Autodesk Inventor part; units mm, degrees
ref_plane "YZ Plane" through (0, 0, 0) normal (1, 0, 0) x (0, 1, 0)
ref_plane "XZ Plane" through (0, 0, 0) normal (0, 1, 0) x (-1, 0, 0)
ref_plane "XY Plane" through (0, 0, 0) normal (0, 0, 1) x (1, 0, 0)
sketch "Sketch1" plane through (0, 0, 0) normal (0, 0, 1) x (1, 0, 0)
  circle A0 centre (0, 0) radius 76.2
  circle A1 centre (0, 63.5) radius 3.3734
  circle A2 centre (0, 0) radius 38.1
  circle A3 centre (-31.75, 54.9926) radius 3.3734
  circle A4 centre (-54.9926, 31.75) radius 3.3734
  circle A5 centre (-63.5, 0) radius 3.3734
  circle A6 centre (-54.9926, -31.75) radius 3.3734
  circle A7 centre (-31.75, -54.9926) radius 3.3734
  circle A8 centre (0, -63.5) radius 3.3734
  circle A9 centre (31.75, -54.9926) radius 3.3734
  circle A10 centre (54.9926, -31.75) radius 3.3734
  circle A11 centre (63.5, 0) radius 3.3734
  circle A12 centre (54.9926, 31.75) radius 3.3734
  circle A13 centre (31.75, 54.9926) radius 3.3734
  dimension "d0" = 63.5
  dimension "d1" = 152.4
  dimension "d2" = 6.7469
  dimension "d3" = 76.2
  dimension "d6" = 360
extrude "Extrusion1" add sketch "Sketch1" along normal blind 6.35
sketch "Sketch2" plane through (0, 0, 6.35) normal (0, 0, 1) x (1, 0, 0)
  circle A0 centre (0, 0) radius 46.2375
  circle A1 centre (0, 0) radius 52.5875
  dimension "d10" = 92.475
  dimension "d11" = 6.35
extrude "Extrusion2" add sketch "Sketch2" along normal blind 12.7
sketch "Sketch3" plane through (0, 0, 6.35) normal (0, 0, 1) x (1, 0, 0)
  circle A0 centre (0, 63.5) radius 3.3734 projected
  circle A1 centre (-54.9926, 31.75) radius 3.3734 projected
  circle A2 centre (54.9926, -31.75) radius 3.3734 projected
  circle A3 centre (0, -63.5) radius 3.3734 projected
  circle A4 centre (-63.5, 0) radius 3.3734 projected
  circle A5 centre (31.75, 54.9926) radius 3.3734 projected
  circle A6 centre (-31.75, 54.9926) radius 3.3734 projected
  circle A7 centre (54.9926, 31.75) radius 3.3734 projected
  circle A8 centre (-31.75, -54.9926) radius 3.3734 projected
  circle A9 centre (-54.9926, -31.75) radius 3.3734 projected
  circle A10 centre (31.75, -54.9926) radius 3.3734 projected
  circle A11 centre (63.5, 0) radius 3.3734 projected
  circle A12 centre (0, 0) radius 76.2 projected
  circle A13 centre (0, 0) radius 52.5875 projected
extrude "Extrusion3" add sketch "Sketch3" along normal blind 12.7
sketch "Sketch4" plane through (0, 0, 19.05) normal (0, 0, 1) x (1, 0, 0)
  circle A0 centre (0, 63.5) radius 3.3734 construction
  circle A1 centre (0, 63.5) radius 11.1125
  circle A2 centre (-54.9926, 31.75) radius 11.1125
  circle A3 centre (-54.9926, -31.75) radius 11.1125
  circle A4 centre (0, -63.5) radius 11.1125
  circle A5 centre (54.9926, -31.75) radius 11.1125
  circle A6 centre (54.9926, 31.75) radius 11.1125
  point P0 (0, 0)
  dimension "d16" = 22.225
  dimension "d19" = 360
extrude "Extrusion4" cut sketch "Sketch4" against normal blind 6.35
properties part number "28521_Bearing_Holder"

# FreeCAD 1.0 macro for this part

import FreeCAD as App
import Part
import Sketcher
from FreeCAD import Vector
Q = App.Units.Quantity

doc = App.newDocument("Part")
params = doc.addObject("Spreadsheet::Sheet", "Params")
for row, (alias, value) in enumerate([
    ("sketch1_diameter", "6 in"),
    ("sketch1_diameter2", "3 in"),
    ("sketch1_diameter3", "0.265622 in"),
    ("pad1_length", "0.25 in"),
    ("pad2_length", "0.5 in"),
    ("sketch3_diameter", "6 in"),
    ("sketch3_diameter2", "0.265622 in"),
    ("pad3_length", "0.5 in"),
    ("sketch4_diameter", "0.875 in"),
    ("pocket1_length", "0.25 in"),
], start=1):
    params.set(f"A{row}", alias)
    params.set(f"B{row}", "=" + value)
    params.setAlias(f"B{row}", alias)

body = doc.addObject("PartDesign::Body", "Body")

sketch1 = body.newObject("Sketcher::SketchObject", "Sketch")
sketch1.AttachmentSupport = (doc.getObject("XY_Plane"), [""])
sketch1.MapMode = "FlatFace"
sketch1.addGeometry([
    Part.Circle(Vector(0, 0, 0), Vector(0, 0, 1), 76.2),
    Part.Circle(Vector(-31.75, -54.9926, 0), Vector(0, 0, 1), 3.3734),
    Part.Circle(Vector(-54.9926, -31.75, 0), Vector(0, 0, 1), 3.3734),
    Part.Circle(Vector(0, -63.5, 0), Vector(0, 0, 1), 3.3734),
    Part.Circle(Vector(31.75, -54.9926, 0), Vector(0, 0, 1), 3.3734),
    Part.Circle(Vector(54.9926, -31.75, 0), Vector(0, 0, 1), 3.3734),
    Part.Circle(Vector(-63.5, 0, 0), Vector(0, 0, 1), 3.3734),
    Part.Circle(Vector(-54.9926, 31.75, 0), Vector(0, 0, 1), 3.3734),
    Part.Circle(Vector(-31.75, 54.9926, 0), Vector(0, 0, 1), 3.3734),
    Part.Circle(Vector(0, 0, 0), Vector(0, 0, 1), 38.1),
    Part.Circle(Vector(63.5, 0, 0), Vector(0, 0, 1), 3.3734),
    Part.Circle(Vector(54.9926, 31.75, 0), Vector(0, 0, 1), 3.3734),
    Part.Circle(Vector(31.75, 54.9926, 0), Vector(0, 0, 1), 3.3734),
    Part.Circle(Vector(0, 63.5, 0), Vector(0, 0, 1), 3.3734),
], False)
sketch1.addConstraint([
    Sketcher.Constraint("Coincident", 0, 3, -1, 1),
    Sketcher.Constraint("Coincident", 9, 3, -1, 1),
    Sketcher.Constraint("Equal", 1, 2),
    Sketcher.Constraint("Equal", 2, 3),
    Sketcher.Constraint("Equal", 3, 4),
    Sketcher.Constraint("Equal", 4, 5),
    Sketcher.Constraint("Equal", 5, 6),
    Sketcher.Constraint("Equal", 6, 7),
    Sketcher.Constraint("Equal", 7, 8),
    Sketcher.Constraint("Equal", 8, 10),
    Sketcher.Constraint("Equal", 10, 11),
    Sketcher.Constraint("Equal", 11, 12),
    Sketcher.Constraint("Equal", 12, 13),
    Sketcher.Constraint("Symmetric", 5, 3, 7, 3, -1, 1),
    Sketcher.Constraint("Symmetric", 4, 3, 8, 3, -1, 1),
    Sketcher.Constraint("Symmetric", 6, 3, 10, 3, -1, 1),
    Sketcher.Constraint("Symmetric", 2, 3, 11, 3, -1, 1),
    Sketcher.Constraint("Symmetric", 1, 3, 12, 3, -1, 1),
    Sketcher.Constraint("Symmetric", 3, 3, 13, 3, -1, 1),
    Sketcher.Constraint("Symmetric", 1, 3, 4, 3, -2),
    Sketcher.Constraint("Symmetric", 2, 3, 5, 3, -2),
    Sketcher.Constraint("PointOnObject", 3, 3, -2),
    Sketcher.Constraint("PointOnObject", 6, 3, -1),
    Sketcher.Constraint("Diameter", 0, Q("6 in")),
    Sketcher.Constraint("Diameter", 9, Q("3 in")),
    Sketcher.Constraint("Diameter", 1, Q("0.265622 in")),
    Sketcher.Constraint("DistanceY", 3, 3, -1, 1, Q("2.5 in")),
    Sketcher.Constraint("DistanceX", 6, 3, -1, 1, Q("2.5 in")),
    Sketcher.Constraint("DistanceX", 1, 3, 4, 3, Q("2.5 in")),
    Sketcher.Constraint("DistanceY", 2, 3, 7, 3, Q("2.5 in")),
    Sketcher.Constraint("DistanceY", 1, 3, -1, 1, Q("54.9926 mm")),
    Sketcher.Constraint("DistanceX", 2, 3, -1, 1, Q("54.9926 mm")),
])
sketch1.setExpression("Constraints[23]", "Params.sketch1_diameter")
sketch1.setExpression("Constraints[24]", "Params.sketch1_diameter2")
sketch1.setExpression("Constraints[25]", "Params.sketch1_diameter3")
pad1 = body.newObject("PartDesign::Pad", "Pad")
pad1.Profile = sketch1
pad1.setExpression("Length", "Params.pad1_length")

sketch2 = body.newObject("Sketcher::SketchObject", "Sketch001")
sketch2.AttachmentSupport = (doc.getObject("XY_Plane"), [""])
sketch2.MapMode = "FlatFace"
sketch2.AttachmentOffset = App.Placement(Vector(0, 0, 0.25 * 25.4), App.Rotation())
sketch2.addGeometry([
    Part.Circle(Vector(0, 0, 0), Vector(0, 0, 1), 52.5875),
    Part.Circle(Vector(0, 0, 0), Vector(0, 0, 1), 46.2375),
], False)
sketch2.addConstraint([
    Sketcher.Constraint("Coincident", 0, 3, -1, 1),
    Sketcher.Constraint("Coincident", 1, 3, -1, 1),
    Sketcher.Constraint("Diameter", 1, Q("92.475 mm")),
    Sketcher.Constraint("Diameter", 0, Q("105.175 mm")),
])
pad2 = body.newObject("PartDesign::Pad", "Pad001")
pad2.Profile = sketch2
pad2.setExpression("Length", "Params.pad2_length")

sketch3 = body.newObject("Sketcher::SketchObject", "Sketch002")
sketch3.AttachmentSupport = (doc.getObject("XY_Plane"), [""])
sketch3.MapMode = "FlatFace"
sketch3.AttachmentOffset = App.Placement(Vector(0, 0, 0.25 * 25.4), App.Rotation())
sketch3.addGeometry([
    Part.Circle(Vector(0, 0, 0), Vector(0, 0, 1), 76.2),
    Part.Circle(Vector(-31.75, -54.9926, 0), Vector(0, 0, 1), 3.3734),
    Part.Circle(Vector(-54.9926, -31.75, 0), Vector(0, 0, 1), 3.3734),
    Part.Circle(Vector(0, -63.5, 0), Vector(0, 0, 1), 3.3734),
    Part.Circle(Vector(31.75, -54.9926, 0), Vector(0, 0, 1), 3.3734),
    Part.Circle(Vector(54.9926, -31.75, 0), Vector(0, 0, 1), 3.3734),
    Part.Circle(Vector(-63.5, 0, 0), Vector(0, 0, 1), 3.3734),
    Part.Circle(Vector(-54.9926, 31.75, 0), Vector(0, 0, 1), 3.3734),
    Part.Circle(Vector(-31.75, 54.9926, 0), Vector(0, 0, 1), 3.3734),
    Part.Circle(Vector(0, 0, 0), Vector(0, 0, 1), 52.5875),
    Part.Circle(Vector(63.5, 0, 0), Vector(0, 0, 1), 3.3734),
    Part.Circle(Vector(54.9926, 31.75, 0), Vector(0, 0, 1), 3.3734),
    Part.Circle(Vector(31.75, 54.9926, 0), Vector(0, 0, 1), 3.3734),
    Part.Circle(Vector(0, 63.5, 0), Vector(0, 0, 1), 3.3734),
], False)
sketch3.addConstraint([
    Sketcher.Constraint("Coincident", 0, 3, -1, 1),
    Sketcher.Constraint("Coincident", 9, 3, -1, 1),
    Sketcher.Constraint("Equal", 1, 2),
    Sketcher.Constraint("Equal", 2, 3),
    Sketcher.Constraint("Equal", 3, 4),
    Sketcher.Constraint("Equal", 4, 5),
    Sketcher.Constraint("Equal", 5, 6),
    Sketcher.Constraint("Equal", 6, 7),
    Sketcher.Constraint("Equal", 7, 8),
    Sketcher.Constraint("Equal", 8, 10),
    Sketcher.Constraint("Equal", 10, 11),
    Sketcher.Constraint("Equal", 11, 12),
    Sketcher.Constraint("Equal", 12, 13),
    Sketcher.Constraint("Symmetric", 5, 3, 7, 3, -1, 1),
    Sketcher.Constraint("Symmetric", 4, 3, 8, 3, -1, 1),
    Sketcher.Constraint("Symmetric", 6, 3, 10, 3, -1, 1),
    Sketcher.Constraint("Symmetric", 2, 3, 11, 3, -1, 1),
    Sketcher.Constraint("Symmetric", 1, 3, 12, 3, -1, 1),
    Sketcher.Constraint("Symmetric", 3, 3, 13, 3, -1, 1),
    Sketcher.Constraint("Symmetric", 1, 3, 4, 3, -2),
    Sketcher.Constraint("Symmetric", 2, 3, 5, 3, -2),
    Sketcher.Constraint("PointOnObject", 3, 3, -2),
    Sketcher.Constraint("PointOnObject", 6, 3, -1),
    Sketcher.Constraint("Diameter", 0, Q("6 in")),
    Sketcher.Constraint("Diameter", 1, Q("0.265622 in")),
    Sketcher.Constraint("DistanceY", 3, 3, -1, 1, Q("2.5 in")),
    Sketcher.Constraint("DistanceX", 6, 3, -1, 1, Q("2.5 in")),
    Sketcher.Constraint("DistanceX", 1, 3, 4, 3, Q("2.5 in")),
    Sketcher.Constraint("DistanceY", 2, 3, 7, 3, Q("2.5 in")),
    Sketcher.Constraint("Diameter", 9, Q("105.175 mm")),
    Sketcher.Constraint("DistanceY", 1, 3, -1, 1, Q("54.9926 mm")),
    Sketcher.Constraint("DistanceX", 2, 3, -1, 1, Q("54.9926 mm")),
])
sketch3.setExpression("Constraints[23]", "Params.sketch3_diameter")
sketch3.setExpression("Constraints[24]", "Params.sketch3_diameter2")
pad3 = body.newObject("PartDesign::Pad", "Pad002")
pad3.Profile = sketch3
pad3.setExpression("Length", "Params.pad3_length")

sketch4 = body.newObject("Sketcher::SketchObject", "Sketch003")
sketch4.AttachmentSupport = (doc.getObject("XY_Plane"), [""])
sketch4.MapMode = "FlatFace"
sketch4.AttachmentOffset = App.Placement(Vector(0, 0, 0.75 * 25.4), App.Rotation())
sketch4.addGeometry([
    Part.Circle(Vector(0, 63.5, 0), Vector(0, 0, 1), 11.1125),
    Part.Circle(Vector(-54.9926, 31.75, 0), Vector(0, 0, 1), 11.1125),
    Part.Circle(Vector(-54.9926, -31.75, 0), Vector(0, 0, 1), 11.1125),
    Part.Circle(Vector(0, -63.5, 0), Vector(0, 0, 1), 11.1125),
    Part.Circle(Vector(54.9926, -31.75, 0), Vector(0, 0, 1), 11.1125),
    Part.Circle(Vector(54.9926, 31.75, 0), Vector(0, 0, 1), 11.1125),
], False)
sketch4.addConstraint([
    Sketcher.Constraint("Equal", 0, 1),
    Sketcher.Constraint("Equal", 1, 2),
    Sketcher.Constraint("Equal", 2, 3),
    Sketcher.Constraint("Equal", 3, 4),
    Sketcher.Constraint("Equal", 4, 5),
    Sketcher.Constraint("Symmetric", 0, 3, 3, 3, -1, 1),
    Sketcher.Constraint("Symmetric", 1, 3, 4, 3, -1, 1),
    Sketcher.Constraint("Symmetric", 2, 3, 5, 3, -1, 1),
    Sketcher.Constraint("Symmetric", 2, 3, 4, 3, -2),
    Sketcher.Constraint("PointOnObject", 0, 3, -2),
    Sketcher.Constraint("Diameter", 0, Q("0.875 in")),
    Sketcher.Constraint("DistanceY", 3, 3, 0, 3, Q("5 in")),
    Sketcher.Constraint("DistanceY", 2, 3, 1, 3, Q("2.5 in")),
    Sketcher.Constraint("DistanceX", 1, 3, -1, 1, Q("54.9926 mm")),
])
sketch4.setExpression("Constraints[10]", "Params.sketch4_diameter")
pocket1 = body.newObject("PartDesign::Pocket", "Pocket")
pocket1.Profile = sketch4
pocket1.setExpression("Length", "Params.pocket1_length")

doc.recompute()
